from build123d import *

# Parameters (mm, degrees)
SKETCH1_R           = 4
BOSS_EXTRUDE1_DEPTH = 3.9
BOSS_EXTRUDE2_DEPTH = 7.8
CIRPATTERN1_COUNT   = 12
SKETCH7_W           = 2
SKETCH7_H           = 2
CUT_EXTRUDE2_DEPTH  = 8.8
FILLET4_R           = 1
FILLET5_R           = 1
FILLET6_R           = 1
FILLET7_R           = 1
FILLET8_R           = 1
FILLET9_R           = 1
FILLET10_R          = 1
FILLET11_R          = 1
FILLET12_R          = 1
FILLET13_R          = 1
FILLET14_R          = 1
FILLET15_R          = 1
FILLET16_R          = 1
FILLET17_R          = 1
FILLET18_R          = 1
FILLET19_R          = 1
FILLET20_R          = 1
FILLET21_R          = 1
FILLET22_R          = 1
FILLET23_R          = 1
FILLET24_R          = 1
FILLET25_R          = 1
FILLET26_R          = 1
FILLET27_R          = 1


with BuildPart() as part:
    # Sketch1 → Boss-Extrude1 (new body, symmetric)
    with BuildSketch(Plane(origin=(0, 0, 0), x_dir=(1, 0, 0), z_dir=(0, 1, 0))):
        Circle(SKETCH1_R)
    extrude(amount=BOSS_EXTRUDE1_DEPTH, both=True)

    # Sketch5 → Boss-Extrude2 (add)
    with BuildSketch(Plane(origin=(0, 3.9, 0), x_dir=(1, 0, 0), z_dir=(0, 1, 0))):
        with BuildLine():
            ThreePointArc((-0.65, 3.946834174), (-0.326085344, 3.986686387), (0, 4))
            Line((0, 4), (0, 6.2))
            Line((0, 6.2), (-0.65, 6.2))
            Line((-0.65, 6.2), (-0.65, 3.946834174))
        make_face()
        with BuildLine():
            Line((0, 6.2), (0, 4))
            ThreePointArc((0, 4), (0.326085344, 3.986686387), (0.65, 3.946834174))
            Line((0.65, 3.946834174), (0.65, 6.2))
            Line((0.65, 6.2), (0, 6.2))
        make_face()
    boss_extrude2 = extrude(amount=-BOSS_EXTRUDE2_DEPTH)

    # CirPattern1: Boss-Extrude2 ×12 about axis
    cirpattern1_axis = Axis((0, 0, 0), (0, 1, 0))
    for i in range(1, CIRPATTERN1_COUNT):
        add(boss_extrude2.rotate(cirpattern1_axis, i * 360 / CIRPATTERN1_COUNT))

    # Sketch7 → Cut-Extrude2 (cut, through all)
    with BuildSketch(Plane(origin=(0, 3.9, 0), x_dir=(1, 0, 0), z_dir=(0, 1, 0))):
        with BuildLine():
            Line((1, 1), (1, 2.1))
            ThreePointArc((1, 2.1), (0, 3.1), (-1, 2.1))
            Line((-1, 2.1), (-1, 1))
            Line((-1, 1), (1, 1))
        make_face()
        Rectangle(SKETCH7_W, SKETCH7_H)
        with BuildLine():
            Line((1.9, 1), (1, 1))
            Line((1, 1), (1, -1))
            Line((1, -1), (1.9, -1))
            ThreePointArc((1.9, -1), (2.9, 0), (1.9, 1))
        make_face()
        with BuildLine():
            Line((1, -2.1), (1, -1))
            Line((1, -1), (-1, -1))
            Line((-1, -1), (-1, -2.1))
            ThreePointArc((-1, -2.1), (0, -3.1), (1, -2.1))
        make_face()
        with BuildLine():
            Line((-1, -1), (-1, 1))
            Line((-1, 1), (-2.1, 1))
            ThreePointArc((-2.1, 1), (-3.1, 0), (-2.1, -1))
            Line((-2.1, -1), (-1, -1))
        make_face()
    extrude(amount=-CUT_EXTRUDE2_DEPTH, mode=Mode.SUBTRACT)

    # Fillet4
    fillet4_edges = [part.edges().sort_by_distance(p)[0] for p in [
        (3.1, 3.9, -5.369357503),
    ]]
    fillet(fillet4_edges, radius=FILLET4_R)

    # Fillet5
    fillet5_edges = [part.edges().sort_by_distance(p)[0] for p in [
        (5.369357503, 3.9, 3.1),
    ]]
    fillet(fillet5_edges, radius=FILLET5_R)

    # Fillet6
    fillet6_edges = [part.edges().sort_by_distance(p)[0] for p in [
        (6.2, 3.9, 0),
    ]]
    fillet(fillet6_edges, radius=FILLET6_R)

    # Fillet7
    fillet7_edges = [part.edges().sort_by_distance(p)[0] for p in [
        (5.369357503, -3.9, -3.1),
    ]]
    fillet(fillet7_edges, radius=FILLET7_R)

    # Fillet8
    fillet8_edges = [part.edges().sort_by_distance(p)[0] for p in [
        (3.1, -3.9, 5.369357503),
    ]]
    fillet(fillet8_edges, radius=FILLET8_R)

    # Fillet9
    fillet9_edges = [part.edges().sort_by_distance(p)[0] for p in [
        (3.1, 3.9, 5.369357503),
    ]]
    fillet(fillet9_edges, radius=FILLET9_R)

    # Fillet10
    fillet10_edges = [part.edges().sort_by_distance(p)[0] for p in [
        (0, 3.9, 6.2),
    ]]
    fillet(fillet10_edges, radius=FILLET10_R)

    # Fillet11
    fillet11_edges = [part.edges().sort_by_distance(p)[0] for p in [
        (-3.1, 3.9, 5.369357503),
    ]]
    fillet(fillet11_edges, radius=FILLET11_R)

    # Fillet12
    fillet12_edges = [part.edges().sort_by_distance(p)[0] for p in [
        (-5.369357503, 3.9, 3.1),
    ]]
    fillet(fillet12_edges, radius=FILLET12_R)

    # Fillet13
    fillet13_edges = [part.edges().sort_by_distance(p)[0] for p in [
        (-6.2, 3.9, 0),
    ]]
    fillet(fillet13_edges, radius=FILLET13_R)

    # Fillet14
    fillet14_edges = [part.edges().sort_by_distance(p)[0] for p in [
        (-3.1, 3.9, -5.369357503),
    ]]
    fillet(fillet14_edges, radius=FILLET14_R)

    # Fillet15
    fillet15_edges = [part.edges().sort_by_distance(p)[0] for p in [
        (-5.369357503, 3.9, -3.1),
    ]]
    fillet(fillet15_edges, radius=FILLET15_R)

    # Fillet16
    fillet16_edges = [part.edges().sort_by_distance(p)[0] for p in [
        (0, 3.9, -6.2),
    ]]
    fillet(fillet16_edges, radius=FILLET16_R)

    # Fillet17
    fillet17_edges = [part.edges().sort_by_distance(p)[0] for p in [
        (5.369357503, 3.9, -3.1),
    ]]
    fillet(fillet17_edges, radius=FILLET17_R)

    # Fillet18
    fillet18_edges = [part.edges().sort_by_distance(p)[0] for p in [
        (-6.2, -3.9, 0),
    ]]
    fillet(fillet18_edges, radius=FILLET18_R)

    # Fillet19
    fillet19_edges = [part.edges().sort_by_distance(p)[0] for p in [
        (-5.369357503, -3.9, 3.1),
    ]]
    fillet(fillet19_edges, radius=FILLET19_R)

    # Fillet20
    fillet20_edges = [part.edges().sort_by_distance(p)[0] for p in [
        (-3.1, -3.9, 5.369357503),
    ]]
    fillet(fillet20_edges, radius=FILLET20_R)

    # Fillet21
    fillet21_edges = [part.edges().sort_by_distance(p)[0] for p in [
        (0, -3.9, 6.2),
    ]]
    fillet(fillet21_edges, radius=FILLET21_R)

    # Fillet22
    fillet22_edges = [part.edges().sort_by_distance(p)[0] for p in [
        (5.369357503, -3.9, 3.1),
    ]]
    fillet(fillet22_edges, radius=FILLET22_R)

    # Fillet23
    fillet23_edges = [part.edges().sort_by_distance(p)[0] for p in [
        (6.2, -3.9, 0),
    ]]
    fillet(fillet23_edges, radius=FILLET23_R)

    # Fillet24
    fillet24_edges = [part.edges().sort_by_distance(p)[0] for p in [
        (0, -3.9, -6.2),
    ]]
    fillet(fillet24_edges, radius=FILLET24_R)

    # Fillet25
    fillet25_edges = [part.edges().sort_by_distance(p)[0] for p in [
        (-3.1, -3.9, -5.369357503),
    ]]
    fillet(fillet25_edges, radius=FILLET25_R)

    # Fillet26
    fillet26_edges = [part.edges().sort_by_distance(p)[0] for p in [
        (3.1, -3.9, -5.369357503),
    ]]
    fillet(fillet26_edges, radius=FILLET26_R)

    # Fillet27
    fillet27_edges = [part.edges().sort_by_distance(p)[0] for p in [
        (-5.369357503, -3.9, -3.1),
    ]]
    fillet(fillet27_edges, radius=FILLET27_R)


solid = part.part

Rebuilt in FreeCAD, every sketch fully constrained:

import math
import FreeCAD as App
import Part
import Sketcher


def edges_at(feature, points):
    """Names of the edges that pass closest to the given points."""
    edges = feature.Shape.Edges
    near = lambda p: min(range(len(edges)), key=lambda i: edges[i].distToShape(Part.Vertex(*p))[0])
    return sorted({f"Edge{near(p) + 1}" for p in points})

doc = App.newDocument("Part")
body = doc.addObject("PartDesign::Body", "Body")

# Sketch on XZ plane
sketch1 = body.newObject("Sketcher::SketchObject", "Sketch")
sketch1.AttachmentSupport = (doc.getObject("XZ_Plane"), [""])
sketch1.MapMode = "FlatFace"
sketch1.addGeometry(Part.Circle(App.Vector(0, 0, 0), App.Vector(0, 0, 1), 4), False)
sketch1.addConstraint([
    Sketcher.Constraint("Coincident", 0, 3, -1, 1),
    Sketcher.Constraint("Diameter", 0, 8.0),
])
pad1 = body.newObject("PartDesign::Pad", "Pad")
pad1.Profile = sketch1
pad1.Length = 7.8
pad1.Midplane = True

# Sketch on XZ plane
sketch2 = body.newObject("Sketcher::SketchObject", "Sketch001")
sketch2.AttachmentSupport = (doc.getObject("XZ_Plane"), [""])
sketch2.MapMode = "FlatFace"
sketch2.AttachmentOffset = App.Placement(App.Vector(0, 0, -3.9), App.Rotation())
sketch2.addGeometry([
    Part.ArcOfCircle(Part.Circle(App.Vector(0, 0, 0), App.Vector(0, 0, 1), 4), math.radians(-99.352035), math.radians(-90)),  # 0
    Part.ArcOfCircle(Part.Circle(App.Vector(0, 0, 0), App.Vector(0, 0, 1), 4), math.radians(-90), math.radians(-80.647965)),  # 1
    Part.LineSegment(App.Vector(0.65, -3.946834, 0), App.Vector(0.65, -6.2, 0)),  # 2
    Part.LineSegment(App.Vector(0.65, -6.2, 0), App.Vector(-0.65, -6.2, 0)),  # 3
    Part.LineSegment(App.Vector(-0.65, -6.2, 0), App.Vector(-0.65, -3.946834, 0)),  # 4
], False)
sketch2.addConstraint([
    Sketcher.Constraint("Tangent", 0, 2, 1, 1),
    Sketcher.Constraint("Coincident", 1, 2, 2, 1),
    Sketcher.Constraint("Coincident", 2, 2, 3, 1),
    Sketcher.Constraint("Coincident", 3, 2, 4, 1),
    Sketcher.Constraint("Coincident", 4, 2, 0, 1),
    Sketcher.Constraint("Vertical", 2),
    Sketcher.Constraint("Horizontal", 3),
    Sketcher.Constraint("Vertical", 4),
    Sketcher.Constraint("Coincident", 0, 3, -1, 1),
    Sketcher.Constraint("Equal", 0, 1),
    Sketcher.Constraint("PointOnObject", 0, 2, -2),
    Sketcher.Constraint("Horizontal", 1, 2, 4, 2),
    Sketcher.Constraint("Radius", 0, 4.0),
    Sketcher.Constraint("DistanceX", 3, 2, 3, 1, 1.3),
    Sketcher.Constraint("DistanceY", 2, 2, -1, 1, 6.2),
])
pad2 = body.newObject("PartDesign::Pad", "Pad001")
pad2.Profile = sketch2
pad2.Length = 7.8
doc.recompute()

polarpattern = body.newObject("PartDesign::PolarPattern", "PolarPattern")
polarpattern.Originals = [pad2]
polarpattern.Axis = (doc.getObject("Y_Axis"), [""])
polarpattern.Angle = 360
polarpattern.Occurrences = 12
body.Tip = polarpattern

# Sketch on XZ plane
sketch3 = body.newObject("Sketcher::SketchObject", "Sketch002")
sketch3.AttachmentSupport = (doc.getObject("XZ_Plane"), [""])
sketch3.MapMode = "FlatFace"
sketch3.AttachmentOffset = App.Placement(App.Vector(0, 0, -3.9), App.Rotation())
sketch3.addGeometry([
    Part.ArcOfCircle(Part.Circle(App.Vector(0, -2.1, 0), App.Vector(0, 0, 1), 1), math.radians(180), math.radians(360)),  # 0
    Part.LineSegment(App.Vector(-1, -2.1, 0), App.Vector(-1, -1, 0)),  # 1
    Part.LineSegment(App.Vector(-1, -1, 0), App.Vector(-2.1, -1, 0)),  # 2
    Part.ArcOfCircle(Part.Circle(App.Vector(-2.1, 0, 0), App.Vector(0, 0, 1), 1), math.radians(90), math.radians(270)),  # 3
    Part.LineSegment(App.Vector(-2.1, 1, 0), App.Vector(-1, 1, 0)),  # 4
    Part.LineSegment(App.Vector(-1, 1, 0), App.Vector(-1, 2.1, 0)),  # 5
    Part.ArcOfCircle(Part.Circle(App.Vector(0, 2.1, 0), App.Vector(0, 0, 1), 1), math.radians(0), math.radians(180)),  # 6
    Part.LineSegment(App.Vector(1, 2.1, 0), App.Vector(1, 1, 0)),  # 7
    Part.LineSegment(App.Vector(1, 1, 0), App.Vector(1.9, 1, 0)),  # 8
    Part.ArcOfCircle(Part.Circle(App.Vector(1.9, 0, 0), App.Vector(0, 0, 1), 1), math.radians(-90), math.radians(90)),  # 9
    Part.LineSegment(App.Vector(1.9, -1, 0), App.Vector(1, -1, 0)),  # 10
    Part.LineSegment(App.Vector(1, -1, 0), App.Vector(1, -2.1, 0)),  # 11
], False)
sketch3.addConstraint([
    Sketcher.Constraint("Tangent", 0, 1, 1, 1),
    Sketcher.Constraint("Coincident", 1, 2, 2, 1),
    Sketcher.Constraint("Tangent", 2, 2, 3, 2),
    Sketcher.Constraint("Tangent", 3, 1, 4, 1),
    Sketcher.Constraint("Coincident", 4, 2, 5, 1),
    Sketcher.Constraint("Tangent", 5, 2, 6, 2),
    Sketcher.Constraint("Tangent", 6, 1, 7, 1),
    Sketcher.Constraint("Coincident", 7, 2, 8, 1),
    Sketcher.Constraint("Tangent", 8, 2, 9, 2),
    Sketcher.Constraint("Tangent", 9, 1, 10, 1),
    Sketcher.Constraint("Coincident", 10, 2, 11, 1),
    Sketcher.Constraint("Tangent", 11, 2, 0, 2),
    Sketcher.Constraint("Vertical", 1),
    Sketcher.Constraint("Horizontal", 2),
    Sketcher.Constraint("Horizontal", 4),
    Sketcher.Constraint("Vertical", 5),
    Sketcher.Constraint("Vertical", 7),
    Sketcher.Constraint("Horizontal", 8),
    Sketcher.Constraint("Horizontal", 10),
    Sketcher.Constraint("Vertical", 11),
    Sketcher.Constraint("Equal", 0, 3),
    Sketcher.Constraint("Equal", 3, 6),
    Sketcher.Constraint("Equal", 6, 9),
    Sketcher.Constraint("Symmetric", 0, 3, 6, 3, -1, 1),
    Sketcher.Constraint("Symmetric", 4, 2, 7, 2, -2),
    Sketcher.Constraint("PointOnObject", 3, 3, -1),
    Sketcher.Constraint("Equal", 4, 1),
    Sketcher.Constraint("Radius", 0, 1.0),
    Sketcher.Constraint("DistanceX", 2, 2, 2, 1, 1.1),
    Sketcher.Constraint("DistanceX", 8, 1, 8, 2, 0.9),
])
pocket1 = body.newObject("PartDesign::Pocket", "Pocket")
pocket1.Profile = sketch3
pocket1.Type = "ThroughAll"
pocket1.Reversed = True
doc.recompute()

fillet = body.newObject("PartDesign::Fillet", "Fillet")
fillet.Base = (pocket1, edges_at(pocket1, [(3.1, 3.9, -5.369)]))
fillet.Radius = 1
doc.recompute()

fillet2 = body.newObject("PartDesign::Fillet", "Fillet001")
fillet2.Base = (fillet, edges_at(fillet, [(5.369, 3.9, 3.1)]))
fillet2.Radius = 1
doc.recompute()

fillet3 = body.newObject("PartDesign::Fillet", "Fillet002")
fillet3.Base = (fillet2, edges_at(fillet2, [(6.2, 3.9, 0)]))
fillet3.Radius = 1
doc.recompute()

fillet4 = body.newObject("PartDesign::Fillet", "Fillet003")
fillet4.Base = (fillet3, edges_at(fillet3, [(5.369, -3.9, -3.1)]))
fillet4.Radius = 1
doc.recompute()

fillet5 = body.newObject("PartDesign::Fillet", "Fillet004")
fillet5.Base = (fillet4, edges_at(fillet4, [(3.1, -3.9, 5.369)]))
fillet5.Radius = 1
doc.recompute()

fillet6 = body.newObject("PartDesign::Fillet", "Fillet005")
fillet6.Base = (fillet5, edges_at(fillet5, [(3.1, 3.9, 5.369)]))
fillet6.Radius = 1
doc.recompute()

fillet7 = body.newObject("PartDesign::Fillet", "Fillet006")
fillet7.Base = (fillet6, edges_at(fillet6, [(0, 3.9, 6.2)]))
fillet7.Radius = 1
doc.recompute()

fillet8 = body.newObject("PartDesign::Fillet", "Fillet007")
fillet8.Base = (fillet7, edges_at(fillet7, [(-3.1, 3.9, 5.369)]))
fillet8.Radius = 1
doc.recompute()

fillet9 = body.newObject("PartDesign::Fillet", "Fillet008")
fillet9.Base = (fillet8, edges_at(fillet8, [(-5.369, 3.9, 3.1)]))
fillet9.Radius = 1
doc.recompute()

fillet10 = body.newObject("PartDesign::Fillet", "Fillet009")
fillet10.Base = (fillet9, edges_at(fillet9, [(-6.2, 3.9, 0)]))
fillet10.Radius = 1
doc.recompute()

fillet11 = body.newObject("PartDesign::Fillet", "Fillet010")
fillet11.Base = (fillet10, edges_at(fillet10, [(-3.1, 3.9, -5.369)]))
fillet11.Radius = 1
doc.recompute()

fillet12 = body.newObject("PartDesign::Fillet", "Fillet011")
fillet12.Base = (fillet11, edges_at(fillet11, [(-5.369, 3.9, -3.1)]))
fillet12.Radius = 1
doc.recompute()

fillet13 = body.newObject("PartDesign::Fillet", "Fillet012")
fillet13.Base = (fillet12, edges_at(fillet12, [(0, 3.9, -6.2)]))
fillet13.Radius = 1
doc.recompute()

fillet14 = body.newObject("PartDesign::Fillet", "Fillet013")
fillet14.Base = (fillet13, edges_at(fillet13, [(5.369, 3.9, -3.1)]))
fillet14.Radius = 1
doc.recompute()

fillet15 = body.newObject("PartDesign::Fillet", "Fillet014")
fillet15.Base = (fillet14, edges_at(fillet14, [(-6.2, -3.9, 0)]))
fillet15.Radius = 1
doc.recompute()

fillet16 = body.newObject("PartDesign::Fillet", "Fillet015")
fillet16.Base = (fillet15, edges_at(fillet15, [(-5.369, -3.9, 3.1)]))
fillet16.Radius = 1
doc.recompute()

fillet17 = body.newObject("PartDesign::Fillet", "Fillet016")
fillet17.Base = (fillet16, edges_at(fillet16, [(-3.1, -3.9, 5.369)]))
fillet17.Radius = 1
doc.recompute()

fillet18 = body.newObject("PartDesign::Fillet", "Fillet017")
fillet18.Base = (fillet17, edges_at(fillet17, [(0, -3.9, 6.2)]))
fillet18.Radius = 1
doc.recompute()

fillet19 = body.newObject("PartDesign::Fillet", "Fillet018")
fillet19.Base = (fillet18, edges_at(fillet18, [(5.369, -3.9, 3.1)]))
fillet19.Radius = 1
doc.recompute()

fillet20 = body.newObject("PartDesign::Fillet", "Fillet019")
fillet20.Base = (fillet19, edges_at(fillet19, [(6.2, -3.9, 0)]))
fillet20.Radius = 1
doc.recompute()

fillet21 = body.newObject("PartDesign::Fillet", "Fillet020")
fillet21.Base = (fillet20, edges_at(fillet20, [(0, -3.9, -6.2)]))
fillet21.Radius = 1
doc.recompute()

fillet22 = body.newObject("PartDesign::Fillet", "Fillet021")
fillet22.Base = (fillet21, edges_at(fillet21, [(-3.1, -3.9, -5.369)]))
fillet22.Radius = 1
doc.recompute()

fillet23 = body.newObject("PartDesign::Fillet", "Fillet022")
fillet23.Base = (fillet22, edges_at(fillet22, [(3.1, -3.9, -5.369)]))
fillet23.Radius = 1
doc.recompute()

fillet24 = body.newObject("PartDesign::Fillet", "Fillet023")
fillet24.Base = (fillet23, edges_at(fillet23, [(-5.369, -3.9, -3.1)]))
fillet24.Radius = 1

doc.recompute()
